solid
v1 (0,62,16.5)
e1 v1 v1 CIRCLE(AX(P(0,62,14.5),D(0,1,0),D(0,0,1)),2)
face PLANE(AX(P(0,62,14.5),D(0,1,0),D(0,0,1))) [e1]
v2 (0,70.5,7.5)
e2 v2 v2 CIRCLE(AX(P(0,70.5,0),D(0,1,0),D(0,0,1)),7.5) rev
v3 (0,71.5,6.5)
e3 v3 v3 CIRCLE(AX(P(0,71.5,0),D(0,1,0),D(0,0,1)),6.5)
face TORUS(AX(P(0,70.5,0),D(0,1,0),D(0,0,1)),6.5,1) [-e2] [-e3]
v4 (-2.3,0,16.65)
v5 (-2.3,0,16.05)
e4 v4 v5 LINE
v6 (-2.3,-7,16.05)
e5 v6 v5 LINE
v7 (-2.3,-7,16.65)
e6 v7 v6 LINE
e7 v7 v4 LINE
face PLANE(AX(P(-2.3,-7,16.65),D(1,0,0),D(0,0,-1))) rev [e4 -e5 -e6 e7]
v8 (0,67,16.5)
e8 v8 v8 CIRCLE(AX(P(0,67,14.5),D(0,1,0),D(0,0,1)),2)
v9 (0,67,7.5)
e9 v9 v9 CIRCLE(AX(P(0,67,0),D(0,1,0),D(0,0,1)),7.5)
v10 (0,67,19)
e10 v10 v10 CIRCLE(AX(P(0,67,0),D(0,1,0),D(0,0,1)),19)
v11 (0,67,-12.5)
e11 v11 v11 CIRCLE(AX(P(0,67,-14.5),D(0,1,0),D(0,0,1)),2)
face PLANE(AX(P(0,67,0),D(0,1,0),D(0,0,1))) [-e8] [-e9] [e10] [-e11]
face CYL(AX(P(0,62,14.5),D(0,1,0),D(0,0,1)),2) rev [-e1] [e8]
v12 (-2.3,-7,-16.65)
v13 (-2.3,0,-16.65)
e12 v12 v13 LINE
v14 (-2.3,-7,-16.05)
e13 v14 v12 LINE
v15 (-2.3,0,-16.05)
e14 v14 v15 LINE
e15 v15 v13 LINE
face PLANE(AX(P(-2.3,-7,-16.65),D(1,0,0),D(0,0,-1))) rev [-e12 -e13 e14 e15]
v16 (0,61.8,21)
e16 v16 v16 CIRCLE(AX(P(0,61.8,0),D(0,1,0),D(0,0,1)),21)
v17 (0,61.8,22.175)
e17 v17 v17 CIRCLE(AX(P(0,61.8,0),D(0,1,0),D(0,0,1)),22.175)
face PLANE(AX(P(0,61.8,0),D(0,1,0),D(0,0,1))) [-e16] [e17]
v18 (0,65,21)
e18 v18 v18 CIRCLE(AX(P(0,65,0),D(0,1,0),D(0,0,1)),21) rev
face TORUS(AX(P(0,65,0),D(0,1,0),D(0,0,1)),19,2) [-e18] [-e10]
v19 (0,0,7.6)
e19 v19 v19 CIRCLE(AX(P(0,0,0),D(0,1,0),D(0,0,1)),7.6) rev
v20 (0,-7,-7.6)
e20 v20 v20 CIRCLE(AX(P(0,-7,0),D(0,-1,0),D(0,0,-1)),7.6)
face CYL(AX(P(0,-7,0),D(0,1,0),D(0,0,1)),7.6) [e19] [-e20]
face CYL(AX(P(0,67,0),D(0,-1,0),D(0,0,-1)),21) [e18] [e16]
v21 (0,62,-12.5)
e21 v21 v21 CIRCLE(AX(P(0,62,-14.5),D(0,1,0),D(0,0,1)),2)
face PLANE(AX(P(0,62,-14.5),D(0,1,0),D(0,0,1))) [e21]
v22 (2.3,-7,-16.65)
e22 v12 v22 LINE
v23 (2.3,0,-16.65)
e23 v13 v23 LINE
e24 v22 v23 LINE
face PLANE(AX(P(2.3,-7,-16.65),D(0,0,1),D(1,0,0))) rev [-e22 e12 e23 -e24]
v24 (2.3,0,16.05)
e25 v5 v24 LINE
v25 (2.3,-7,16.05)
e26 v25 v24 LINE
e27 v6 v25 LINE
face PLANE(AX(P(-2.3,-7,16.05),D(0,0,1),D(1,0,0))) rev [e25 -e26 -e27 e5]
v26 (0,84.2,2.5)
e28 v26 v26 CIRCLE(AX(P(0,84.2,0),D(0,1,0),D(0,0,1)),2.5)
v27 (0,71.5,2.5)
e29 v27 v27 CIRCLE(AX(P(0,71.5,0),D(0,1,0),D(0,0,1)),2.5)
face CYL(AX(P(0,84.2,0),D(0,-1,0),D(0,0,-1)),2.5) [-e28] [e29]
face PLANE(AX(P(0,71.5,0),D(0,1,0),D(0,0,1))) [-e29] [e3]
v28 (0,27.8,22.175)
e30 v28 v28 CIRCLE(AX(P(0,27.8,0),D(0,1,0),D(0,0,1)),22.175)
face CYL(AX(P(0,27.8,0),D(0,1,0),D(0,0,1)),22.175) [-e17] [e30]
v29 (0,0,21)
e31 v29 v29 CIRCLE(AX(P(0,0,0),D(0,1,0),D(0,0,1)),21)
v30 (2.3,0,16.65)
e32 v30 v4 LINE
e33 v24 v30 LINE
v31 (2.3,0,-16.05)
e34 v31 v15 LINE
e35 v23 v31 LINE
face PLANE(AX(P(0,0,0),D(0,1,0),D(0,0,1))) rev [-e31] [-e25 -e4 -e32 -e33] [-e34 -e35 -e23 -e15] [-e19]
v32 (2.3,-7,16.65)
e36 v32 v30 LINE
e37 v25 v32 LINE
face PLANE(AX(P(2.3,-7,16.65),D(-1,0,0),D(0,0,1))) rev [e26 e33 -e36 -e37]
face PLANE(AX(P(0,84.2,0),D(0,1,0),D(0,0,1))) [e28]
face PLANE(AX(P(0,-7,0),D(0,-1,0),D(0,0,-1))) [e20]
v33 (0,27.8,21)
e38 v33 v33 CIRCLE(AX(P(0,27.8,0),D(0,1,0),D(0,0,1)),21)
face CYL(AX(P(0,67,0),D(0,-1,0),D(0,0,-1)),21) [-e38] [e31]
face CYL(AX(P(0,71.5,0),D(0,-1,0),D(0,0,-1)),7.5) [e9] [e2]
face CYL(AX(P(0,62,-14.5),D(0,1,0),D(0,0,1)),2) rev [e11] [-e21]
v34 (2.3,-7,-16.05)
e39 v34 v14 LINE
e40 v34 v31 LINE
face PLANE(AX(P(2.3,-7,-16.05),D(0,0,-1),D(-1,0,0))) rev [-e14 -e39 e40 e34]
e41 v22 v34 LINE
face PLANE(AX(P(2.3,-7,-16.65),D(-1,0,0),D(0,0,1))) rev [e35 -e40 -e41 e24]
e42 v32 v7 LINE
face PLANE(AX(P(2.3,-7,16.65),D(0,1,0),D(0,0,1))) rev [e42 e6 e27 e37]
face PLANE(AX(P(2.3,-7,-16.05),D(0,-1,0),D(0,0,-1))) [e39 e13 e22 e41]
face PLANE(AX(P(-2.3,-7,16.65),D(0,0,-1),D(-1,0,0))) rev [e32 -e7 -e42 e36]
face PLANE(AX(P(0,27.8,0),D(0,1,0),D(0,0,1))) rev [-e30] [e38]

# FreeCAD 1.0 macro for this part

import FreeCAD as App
import Part
import Sketcher
from FreeCAD import Vector


def edges_at(feature, points):
    """Names of the edges that pass closest to the given points."""
    edges = feature.Shape.Edges
    near = lambda p: min(range(len(edges)), key=lambda i: edges[i].distToShape(Part.Vertex(*p))[0])
    return sorted({f"Edge{near(p) + 1}" for p in points})

doc = App.newDocument("Part")
params = doc.addObject("Spreadsheet::Sheet", "Params")
for row, (alias, value) in enumerate([
    ("sketch1_diameter", "42 mm"),
    ("pad1_length", "67 mm"),
    ("sketch2_diameter", "15 mm"),
    ("pad2_length", "4.5 mm"),
    ("sketch3_diameter", "5 mm"),
    ("pad3_length", "12.7 mm"),
    ("fillet_radius", "2 mm"),
    ("fillet2_radius", "1 mm"),
    ("sketch4_diameter", "4 mm"),
    ("pocket1_length", "5 mm"),
    ("sketch5_width", "4.6 mm"),
    ("sketch5_height", "0.6 mm"),
    ("pad4_length", "7 mm"),
    ("sketch6_diameter", "15.2 mm"),
    ("pad5_length", "7 mm"),
    ("sketch7_diameter", "42 mm"),
    ("sketch7_diameter2", "44.35 mm"),
    ("pad6_length", "34 mm"),
], start=1):
    params.set(f"A{row}", alias)
    params.set(f"B{row}", "=" + value)
    params.setAlias(f"B{row}", alias)

body = doc.addObject("PartDesign::Body", "Body")

sketch1 = body.newObject("Sketcher::SketchObject", "Sketch")
sketch1.AttachmentSupport = (doc.getObject("XZ_Plane"), [""])
sketch1.MapMode = "FlatFace"
sketch1.addGeometry(Part.Circle(Vector(0, 0, 0), Vector(0, 0, 1), 21), False)
sketch1.addConstraint([
    Sketcher.Constraint("Coincident", 0, 3, -1, 1),
    Sketcher.Constraint("Diameter", 0, 42.0),
])
sketch1.setExpression("Constraints[1]", "Params.sketch1_diameter")
pad1 = body.newObject("PartDesign::Pad", "Pad")
pad1.Profile = sketch1
pad1.setExpression("Length", "Params.pad1_length")
pad1.Reversed = True

sketch2 = body.newObject("Sketcher::SketchObject", "Sketch001")
sketch2.AttachmentSupport = (doc.getObject("XZ_Plane"), [""])
sketch2.MapMode = "FlatFace"
sketch2.AttachmentOffset = App.Placement(Vector(0, 0, -67), App.Rotation())
sketch2.addGeometry(Part.Circle(Vector(0, 0, 0), Vector(0, 0, 1), 7.5), False)
sketch2.addConstraint([
    Sketcher.Constraint("Coincident", 0, 3, -1, 1),
    Sketcher.Constraint("Diameter", 0, 15.0),
])
sketch2.setExpression("Constraints[1]", "Params.sketch2_diameter")
pad2 = body.newObject("PartDesign::Pad", "Pad001")
pad2.Profile = sketch2
pad2.setExpression("Length", "Params.pad2_length")
pad2.Reversed = True

sketch3 = body.newObject("Sketcher::SketchObject", "Sketch002")
sketch3.AttachmentSupport = (doc.getObject("XZ_Plane"), [""])
sketch3.MapMode = "FlatFace"
sketch3.AttachmentOffset = App.Placement(Vector(0, 0, -71.5), App.Rotation())
sketch3.addGeometry(Part.Circle(Vector(0, 0, 0), Vector(0, 0, 1), 2.5), False)
sketch3.addConstraint([
    Sketcher.Constraint("Coincident", 0, 3, -1, 1),
    Sketcher.Constraint("Diameter", 0, 5.0),
])
sketch3.setExpression("Constraints[1]", "Params.sketch3_diameter")
pad3 = body.newObject("PartDesign::Pad", "Pad002")
pad3.Profile = sketch3
pad3.setExpression("Length", "Params.pad3_length")
pad3.Reversed = True
doc.recompute()

fillet = body.newObject("PartDesign::Fillet", "Fillet")
fillet.Base = (pad3, edges_at(pad3, [(0, 67, -21)]))
fillet.setExpression("Radius", "Params.fillet_radius")
doc.recompute()

fillet2 = body.newObject("PartDesign::Fillet", "Fillet001")
fillet2.Base = (fillet, edges_at(fillet, [(0, 71.5, -7.5)]))
fillet2.setExpression("Radius", "Params.fillet2_radius")

sketch4 = body.newObject("Sketcher::SketchObject", "Sketch003")
sketch4.AttachmentSupport = (doc.getObject("XZ_Plane"), [""])
sketch4.MapMode = "FlatFace"
sketch4.AttachmentOffset = App.Placement(Vector(0, 0, -67), App.Rotation())
sketch4.addGeometry([
    Part.Circle(Vector(0, -14.5, 0), Vector(0, 0, 1), 2),
    Part.Circle(Vector(0, 14.5, 0), Vector(0, 0, 1), 2),
], False)
sketch4.addConstraint([
    Sketcher.Constraint("Equal", 0, 1),
    Sketcher.Constraint("Symmetric", 0, 3, 1, 3, -1, 1),
    Sketcher.Constraint("PointOnObject", 0, 3, -2),
    Sketcher.Constraint("Diameter", 0, 4.0),
    Sketcher.Constraint("DistanceY", 0, 3, 1, 3, 29.0),
])
sketch4.setExpression("Constraints[3]", "Params.sketch4_diameter")
pocket1 = body.newObject("PartDesign::Pocket", "Pocket")
pocket1.Profile = sketch4
pocket1.setExpression("Length", "Params.pocket1_length")
pocket1.Reversed = True

sketch5 = body.newObject("Sketcher::SketchObject", "Sketch004")
sketch5.AttachmentSupport = (doc.getObject("XZ_Plane"), [""])
sketch5.MapMode = "FlatFace"
sketch5.addGeometry([
    Part.LineSegment(Vector(-2.3, 16.65, 0), Vector(-2.3, 16.05, 0)),
    Part.LineSegment(Vector(-2.3, 16.05, 0), Vector(2.3, 16.05, 0)),
    Part.LineSegment(Vector(2.3, 16.05, 0), Vector(2.3, 16.65, 0)),
    Part.LineSegment(Vector(2.3, 16.65, 0), Vector(-2.3, 16.65, 0)),
    Part.LineSegment(Vector(-2.3, -16.05, 0), Vector(-2.3, -16.65, 0)),
    Part.LineSegment(Vector(-2.3, -16.65, 0), Vector(2.3, -16.65, 0)),
    Part.LineSegment(Vector(2.3, -16.65, 0), Vector(2.3, -16.05, 0)),
    Part.LineSegment(Vector(2.3, -16.05, 0), Vector(-2.3, -16.05, 0)),
], False)
sketch5.addConstraint([
    Sketcher.Constraint("Coincident", 0, 2, 1, 1),
    Sketcher.Constraint("Coincident", 1, 2, 2, 1),
    Sketcher.Constraint("Coincident", 2, 2, 3, 1),
    Sketcher.Constraint("Coincident", 3, 2, 0, 1),
    Sketcher.Constraint("Coincident", 4, 2, 5, 1),
    Sketcher.Constraint("Coincident", 5, 2, 6, 1),
    Sketcher.Constraint("Coincident", 6, 2, 7, 1),
    Sketcher.Constraint("Coincident", 7, 2, 4, 1),
    Sketcher.Constraint("Vertical", 0),
    Sketcher.Constraint("Horizontal", 1),
    Sketcher.Constraint("Vertical", 2),
    Sketcher.Constraint("Horizontal", 3),
    Sketcher.Constraint("Vertical", 4),
    Sketcher.Constraint("Horizontal", 5),
    Sketcher.Constraint("Vertical", 6),
    Sketcher.Constraint("Horizontal", 7),
    Sketcher.Constraint("Symmetric", 2, 2, 4, 2, -1, 1),
    Sketcher.Constraint("Symmetric", 0, 2, 6, 2, -1, 1),
    Sketcher.Constraint("Vertical", 3, 2, 4, 2),
    Sketcher.Constraint("DistanceX", 1, 1, 1, 2, 4.6),
    Sketcher.Constraint("DistanceY", 0, 2, 0, 1, 0.6),
    Sketcher.Constraint("DistanceY", 4, 2, 0, 2, 32.7),
])
sketch5.setExpression("Constraints[19]", "Params.sketch5_width")
sketch5.setExpression("Constraints[20]", "Params.sketch5_height")
pad4 = body.newObject("PartDesign::Pad", "Pad003")
pad4.Profile = sketch5
pad4.setExpression("Length", "Params.pad4_length")

sketch6 = body.newObject("Sketcher::SketchObject", "Sketch005")
sketch6.AttachmentSupport = (doc.getObject("XZ_Plane"), [""])
sketch6.MapMode = "FlatFace"
sketch6.addGeometry(Part.Circle(Vector(0, 0, 0), Vector(0, 0, 1), 7.6), False)
sketch6.addConstraint([
    Sketcher.Constraint("Coincident", 0, 3, -1, 1),
    Sketcher.Constraint("Diameter", 0, 15.2),
])
sketch6.setExpression("Constraints[1]", "Params.sketch6_diameter")
pad5 = body.newObject("PartDesign::Pad", "Pad004")
pad5.Profile = sketch6
pad5.setExpression("Length", "Params.pad5_length")

sketch7 = body.newObject("Sketcher::SketchObject", "Sketch006")
sketch7.AttachmentSupport = (doc.getObject("XZ_Plane"), [""])
sketch7.MapMode = "FlatFace"
sketch7.AttachmentOffset = App.Placement(Vector(0, 0, -27.8), App.Rotation())
sketch7.addGeometry([
    Part.Circle(Vector(0, 0, 0), Vector(0, 0, 1), 22.175),
    Part.Circle(Vector(0, 0, 0), Vector(0, 0, 1), 21),
], False)
sketch7.addConstraint([
    Sketcher.Constraint("Coincident", 0, 3, -1, 1),
    Sketcher.Constraint("Coincident", 1, 3, -1, 1),
    Sketcher.Constraint("Diameter", 1, 42.0),
    Sketcher.Constraint("Diameter", 0, 44.35),
])
sketch7.setExpression("Constraints[2]", "Params.sketch7_diameter")
sketch7.setExpression("Constraints[3]", "Params.sketch7_diameter2")
pad6 = body.newObject("PartDesign::Pad", "Pad005")
pad6.Profile = sketch7
pad6.setExpression("Length", "Params.pad6_length")
pad6.Reversed = True

doc.recompute()
